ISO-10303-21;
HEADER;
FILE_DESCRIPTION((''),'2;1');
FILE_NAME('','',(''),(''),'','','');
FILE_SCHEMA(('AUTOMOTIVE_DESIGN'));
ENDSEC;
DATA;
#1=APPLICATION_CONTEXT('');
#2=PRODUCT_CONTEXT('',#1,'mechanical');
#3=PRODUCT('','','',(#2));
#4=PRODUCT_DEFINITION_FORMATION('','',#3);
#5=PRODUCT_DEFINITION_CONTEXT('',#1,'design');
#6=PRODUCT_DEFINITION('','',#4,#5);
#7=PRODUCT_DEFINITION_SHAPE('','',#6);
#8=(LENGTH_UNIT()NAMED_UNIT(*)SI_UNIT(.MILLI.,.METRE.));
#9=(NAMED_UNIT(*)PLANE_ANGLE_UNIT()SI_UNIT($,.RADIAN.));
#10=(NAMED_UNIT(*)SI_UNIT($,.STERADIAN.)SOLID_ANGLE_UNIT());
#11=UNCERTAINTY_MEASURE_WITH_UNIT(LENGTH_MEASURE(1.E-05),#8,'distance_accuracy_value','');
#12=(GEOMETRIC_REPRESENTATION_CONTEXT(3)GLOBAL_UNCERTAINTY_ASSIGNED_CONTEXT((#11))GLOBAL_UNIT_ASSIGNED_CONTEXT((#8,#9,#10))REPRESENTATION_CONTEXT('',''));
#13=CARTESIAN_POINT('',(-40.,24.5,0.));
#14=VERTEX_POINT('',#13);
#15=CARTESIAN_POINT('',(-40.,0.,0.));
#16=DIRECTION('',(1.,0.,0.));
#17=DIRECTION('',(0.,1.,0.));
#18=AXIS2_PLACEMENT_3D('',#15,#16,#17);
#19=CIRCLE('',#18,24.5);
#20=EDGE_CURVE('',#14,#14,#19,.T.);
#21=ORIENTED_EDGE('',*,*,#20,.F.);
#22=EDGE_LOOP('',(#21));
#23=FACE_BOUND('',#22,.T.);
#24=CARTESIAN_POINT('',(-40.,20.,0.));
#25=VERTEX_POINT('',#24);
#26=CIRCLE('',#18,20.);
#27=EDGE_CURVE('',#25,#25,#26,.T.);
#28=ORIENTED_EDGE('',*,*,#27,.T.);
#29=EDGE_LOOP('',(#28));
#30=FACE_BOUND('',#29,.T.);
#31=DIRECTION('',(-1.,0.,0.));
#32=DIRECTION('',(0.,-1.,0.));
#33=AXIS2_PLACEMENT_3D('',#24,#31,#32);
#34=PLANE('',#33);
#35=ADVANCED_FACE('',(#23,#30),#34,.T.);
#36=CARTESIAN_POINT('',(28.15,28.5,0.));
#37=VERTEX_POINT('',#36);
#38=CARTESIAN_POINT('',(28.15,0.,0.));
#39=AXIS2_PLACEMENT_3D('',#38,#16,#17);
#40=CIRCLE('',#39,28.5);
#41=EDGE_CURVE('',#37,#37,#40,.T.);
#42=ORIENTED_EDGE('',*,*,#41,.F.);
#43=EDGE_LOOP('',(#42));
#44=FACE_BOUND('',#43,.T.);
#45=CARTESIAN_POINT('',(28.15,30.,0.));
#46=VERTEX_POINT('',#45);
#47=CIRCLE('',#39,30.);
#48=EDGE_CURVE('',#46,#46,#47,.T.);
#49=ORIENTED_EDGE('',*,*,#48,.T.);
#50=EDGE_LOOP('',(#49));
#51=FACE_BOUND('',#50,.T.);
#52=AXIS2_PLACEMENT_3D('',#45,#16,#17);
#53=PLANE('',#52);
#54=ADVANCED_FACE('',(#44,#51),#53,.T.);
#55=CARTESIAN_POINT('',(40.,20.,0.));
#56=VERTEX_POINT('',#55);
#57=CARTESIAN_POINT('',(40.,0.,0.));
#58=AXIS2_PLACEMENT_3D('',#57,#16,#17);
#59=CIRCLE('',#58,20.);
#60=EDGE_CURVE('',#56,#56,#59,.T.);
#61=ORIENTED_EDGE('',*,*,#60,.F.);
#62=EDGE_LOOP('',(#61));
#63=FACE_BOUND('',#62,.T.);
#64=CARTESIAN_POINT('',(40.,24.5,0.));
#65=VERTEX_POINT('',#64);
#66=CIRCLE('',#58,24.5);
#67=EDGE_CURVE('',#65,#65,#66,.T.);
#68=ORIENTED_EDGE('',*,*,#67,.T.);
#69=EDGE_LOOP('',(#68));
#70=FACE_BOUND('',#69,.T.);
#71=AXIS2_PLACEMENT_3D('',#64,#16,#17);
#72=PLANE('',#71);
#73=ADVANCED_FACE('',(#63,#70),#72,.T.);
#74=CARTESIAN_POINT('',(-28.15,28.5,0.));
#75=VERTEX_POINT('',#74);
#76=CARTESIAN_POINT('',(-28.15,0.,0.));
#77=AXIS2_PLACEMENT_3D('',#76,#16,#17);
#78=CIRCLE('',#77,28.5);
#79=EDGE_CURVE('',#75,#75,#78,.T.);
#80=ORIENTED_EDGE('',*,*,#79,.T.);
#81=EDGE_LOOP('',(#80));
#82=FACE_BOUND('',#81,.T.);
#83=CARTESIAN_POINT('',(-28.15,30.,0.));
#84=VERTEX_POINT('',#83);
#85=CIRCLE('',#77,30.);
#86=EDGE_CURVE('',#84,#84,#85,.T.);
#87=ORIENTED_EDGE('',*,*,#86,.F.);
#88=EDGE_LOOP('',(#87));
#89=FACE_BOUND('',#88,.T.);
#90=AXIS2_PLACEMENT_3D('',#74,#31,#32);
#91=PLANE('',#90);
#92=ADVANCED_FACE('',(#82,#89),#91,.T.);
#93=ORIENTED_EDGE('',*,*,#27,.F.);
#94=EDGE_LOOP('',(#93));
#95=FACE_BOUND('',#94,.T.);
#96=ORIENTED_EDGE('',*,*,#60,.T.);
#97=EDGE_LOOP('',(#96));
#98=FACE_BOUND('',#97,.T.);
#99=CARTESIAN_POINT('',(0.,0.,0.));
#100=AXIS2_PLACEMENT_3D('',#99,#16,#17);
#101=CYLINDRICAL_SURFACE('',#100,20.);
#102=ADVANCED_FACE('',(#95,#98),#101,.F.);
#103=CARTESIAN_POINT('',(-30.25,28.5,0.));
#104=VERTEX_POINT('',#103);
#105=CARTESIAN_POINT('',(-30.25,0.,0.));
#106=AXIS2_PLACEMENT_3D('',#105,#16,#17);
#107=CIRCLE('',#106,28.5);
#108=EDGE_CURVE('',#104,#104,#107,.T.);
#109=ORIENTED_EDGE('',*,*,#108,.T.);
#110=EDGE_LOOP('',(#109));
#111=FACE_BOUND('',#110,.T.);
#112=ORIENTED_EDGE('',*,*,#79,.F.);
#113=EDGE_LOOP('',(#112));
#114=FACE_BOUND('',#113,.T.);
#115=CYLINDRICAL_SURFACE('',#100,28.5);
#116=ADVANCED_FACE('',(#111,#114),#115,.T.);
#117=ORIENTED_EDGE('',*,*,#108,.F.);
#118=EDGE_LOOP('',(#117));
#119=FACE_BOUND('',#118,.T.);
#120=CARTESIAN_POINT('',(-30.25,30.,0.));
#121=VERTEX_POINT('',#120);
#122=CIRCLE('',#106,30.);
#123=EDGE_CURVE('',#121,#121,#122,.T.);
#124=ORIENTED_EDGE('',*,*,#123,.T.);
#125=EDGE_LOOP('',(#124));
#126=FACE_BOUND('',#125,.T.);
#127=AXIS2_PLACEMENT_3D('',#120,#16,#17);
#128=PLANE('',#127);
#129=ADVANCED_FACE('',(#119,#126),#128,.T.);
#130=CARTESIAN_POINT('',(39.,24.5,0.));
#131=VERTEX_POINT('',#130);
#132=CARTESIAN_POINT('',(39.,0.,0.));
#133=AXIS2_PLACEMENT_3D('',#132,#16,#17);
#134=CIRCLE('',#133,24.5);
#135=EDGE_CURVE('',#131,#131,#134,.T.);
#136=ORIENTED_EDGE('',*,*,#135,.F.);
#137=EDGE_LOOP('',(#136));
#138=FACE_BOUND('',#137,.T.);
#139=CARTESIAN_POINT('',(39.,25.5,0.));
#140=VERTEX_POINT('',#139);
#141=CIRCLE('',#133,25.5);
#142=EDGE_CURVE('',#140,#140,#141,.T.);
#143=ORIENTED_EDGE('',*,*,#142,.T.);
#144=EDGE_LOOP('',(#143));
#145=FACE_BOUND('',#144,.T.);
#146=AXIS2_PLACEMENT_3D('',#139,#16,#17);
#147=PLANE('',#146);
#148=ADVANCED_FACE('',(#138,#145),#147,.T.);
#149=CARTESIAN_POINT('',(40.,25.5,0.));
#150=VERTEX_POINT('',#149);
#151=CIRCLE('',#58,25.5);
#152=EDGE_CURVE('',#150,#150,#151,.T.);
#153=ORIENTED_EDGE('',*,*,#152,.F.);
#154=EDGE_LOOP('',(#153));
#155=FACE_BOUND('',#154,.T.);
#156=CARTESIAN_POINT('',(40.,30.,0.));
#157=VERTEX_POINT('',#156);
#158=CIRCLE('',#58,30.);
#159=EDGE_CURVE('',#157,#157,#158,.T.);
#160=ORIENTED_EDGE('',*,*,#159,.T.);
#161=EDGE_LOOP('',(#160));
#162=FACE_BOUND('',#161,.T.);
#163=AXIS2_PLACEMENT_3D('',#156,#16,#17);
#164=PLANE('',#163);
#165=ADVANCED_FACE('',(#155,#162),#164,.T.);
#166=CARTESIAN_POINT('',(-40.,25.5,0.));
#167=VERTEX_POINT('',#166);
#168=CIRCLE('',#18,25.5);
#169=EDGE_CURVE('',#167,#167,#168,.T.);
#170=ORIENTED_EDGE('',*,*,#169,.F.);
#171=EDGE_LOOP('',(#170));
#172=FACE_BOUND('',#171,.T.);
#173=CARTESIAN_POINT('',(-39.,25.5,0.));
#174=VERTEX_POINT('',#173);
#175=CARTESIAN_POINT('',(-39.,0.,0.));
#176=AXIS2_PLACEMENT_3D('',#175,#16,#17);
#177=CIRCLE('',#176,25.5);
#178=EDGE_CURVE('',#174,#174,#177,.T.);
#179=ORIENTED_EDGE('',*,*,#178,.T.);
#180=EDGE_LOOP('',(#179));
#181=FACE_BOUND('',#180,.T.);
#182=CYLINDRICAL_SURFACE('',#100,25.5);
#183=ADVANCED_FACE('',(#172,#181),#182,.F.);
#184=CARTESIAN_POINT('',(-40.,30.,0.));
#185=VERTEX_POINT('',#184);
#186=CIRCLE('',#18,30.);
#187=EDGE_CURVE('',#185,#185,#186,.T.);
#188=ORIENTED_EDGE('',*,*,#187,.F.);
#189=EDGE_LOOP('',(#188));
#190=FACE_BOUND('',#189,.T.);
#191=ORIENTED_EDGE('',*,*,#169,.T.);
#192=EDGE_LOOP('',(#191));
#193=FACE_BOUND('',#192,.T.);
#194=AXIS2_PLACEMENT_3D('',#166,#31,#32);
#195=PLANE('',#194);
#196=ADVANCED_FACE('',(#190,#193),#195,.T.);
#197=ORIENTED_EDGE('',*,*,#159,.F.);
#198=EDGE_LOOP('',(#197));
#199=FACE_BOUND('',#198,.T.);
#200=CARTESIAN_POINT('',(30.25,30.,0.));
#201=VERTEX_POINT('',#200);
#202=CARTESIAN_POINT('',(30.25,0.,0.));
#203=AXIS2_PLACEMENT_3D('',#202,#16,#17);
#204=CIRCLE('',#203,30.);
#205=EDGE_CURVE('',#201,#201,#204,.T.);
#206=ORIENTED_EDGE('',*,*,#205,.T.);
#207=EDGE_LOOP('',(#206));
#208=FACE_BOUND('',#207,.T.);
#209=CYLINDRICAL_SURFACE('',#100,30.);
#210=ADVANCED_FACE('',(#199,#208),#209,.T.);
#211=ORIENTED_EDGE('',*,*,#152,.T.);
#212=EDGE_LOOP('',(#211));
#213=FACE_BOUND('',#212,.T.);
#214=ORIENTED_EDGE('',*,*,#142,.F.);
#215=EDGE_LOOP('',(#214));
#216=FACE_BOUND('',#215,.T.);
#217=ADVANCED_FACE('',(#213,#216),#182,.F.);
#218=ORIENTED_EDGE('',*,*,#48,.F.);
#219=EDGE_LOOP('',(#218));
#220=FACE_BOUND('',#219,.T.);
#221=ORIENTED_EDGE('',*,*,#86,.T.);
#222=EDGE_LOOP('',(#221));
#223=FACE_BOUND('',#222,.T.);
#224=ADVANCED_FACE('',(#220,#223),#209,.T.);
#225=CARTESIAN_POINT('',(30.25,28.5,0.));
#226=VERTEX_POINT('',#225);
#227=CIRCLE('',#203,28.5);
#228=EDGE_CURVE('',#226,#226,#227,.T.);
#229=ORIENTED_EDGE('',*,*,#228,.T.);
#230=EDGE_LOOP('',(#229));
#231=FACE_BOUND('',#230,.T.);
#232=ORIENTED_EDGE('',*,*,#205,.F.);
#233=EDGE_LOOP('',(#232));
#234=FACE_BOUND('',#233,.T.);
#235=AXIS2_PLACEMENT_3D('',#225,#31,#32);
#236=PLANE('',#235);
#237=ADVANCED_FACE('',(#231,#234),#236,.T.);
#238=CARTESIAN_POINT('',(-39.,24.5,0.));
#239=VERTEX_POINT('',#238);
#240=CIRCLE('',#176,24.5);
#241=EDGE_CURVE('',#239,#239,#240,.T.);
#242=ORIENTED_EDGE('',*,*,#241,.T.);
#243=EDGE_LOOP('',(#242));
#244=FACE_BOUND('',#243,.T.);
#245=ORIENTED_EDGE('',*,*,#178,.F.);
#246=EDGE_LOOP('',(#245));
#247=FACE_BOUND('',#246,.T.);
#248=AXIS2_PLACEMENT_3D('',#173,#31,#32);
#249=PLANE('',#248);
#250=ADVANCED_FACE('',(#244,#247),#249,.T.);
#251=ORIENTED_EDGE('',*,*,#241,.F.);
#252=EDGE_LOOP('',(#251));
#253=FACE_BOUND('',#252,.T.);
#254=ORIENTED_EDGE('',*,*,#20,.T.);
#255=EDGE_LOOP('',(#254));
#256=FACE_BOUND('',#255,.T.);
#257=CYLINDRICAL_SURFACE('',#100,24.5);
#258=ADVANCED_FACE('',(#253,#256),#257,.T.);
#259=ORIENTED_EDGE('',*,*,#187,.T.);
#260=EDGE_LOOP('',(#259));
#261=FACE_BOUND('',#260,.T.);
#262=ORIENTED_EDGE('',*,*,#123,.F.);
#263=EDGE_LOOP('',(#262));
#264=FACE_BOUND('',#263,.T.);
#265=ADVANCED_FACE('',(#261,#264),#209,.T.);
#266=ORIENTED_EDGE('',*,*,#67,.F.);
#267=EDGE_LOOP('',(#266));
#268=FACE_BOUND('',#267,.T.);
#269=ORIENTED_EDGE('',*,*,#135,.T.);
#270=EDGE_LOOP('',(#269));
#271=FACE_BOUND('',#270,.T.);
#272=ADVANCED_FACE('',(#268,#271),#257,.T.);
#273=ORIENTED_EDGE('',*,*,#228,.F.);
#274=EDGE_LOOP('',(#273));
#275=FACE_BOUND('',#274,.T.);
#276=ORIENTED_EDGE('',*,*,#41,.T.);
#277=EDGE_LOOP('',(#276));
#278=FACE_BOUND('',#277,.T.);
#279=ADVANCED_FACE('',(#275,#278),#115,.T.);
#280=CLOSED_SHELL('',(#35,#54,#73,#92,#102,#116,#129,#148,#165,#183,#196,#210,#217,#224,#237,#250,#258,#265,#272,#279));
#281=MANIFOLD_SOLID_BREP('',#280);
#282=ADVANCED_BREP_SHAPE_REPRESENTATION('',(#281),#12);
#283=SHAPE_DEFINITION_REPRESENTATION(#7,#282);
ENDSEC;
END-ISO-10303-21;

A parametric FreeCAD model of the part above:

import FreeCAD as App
import Part
import Sketcher

V = App.Vector

doc = App.newDocument("Part")
body = doc.addObject("PartDesign::Body", "Body")

# Sketch on XY plane
sketch1 = body.newObject("Sketcher::SketchObject", "Sketch")
sketch1.AttachmentSupport = (doc.getObject("XY_Plane"), [""])
sketch1.MapMode = "FlatFace"
sketch1.addGeometry([
    Part.LineSegment(V(-30.2, 30, 0), V(-40, 30, 0)),  # 0
    Part.LineSegment(V(-40, 30, 0), V(-40, 25.5, 0)),  # 1
    Part.LineSegment(V(-40, 25.5, 0), V(-39, 25.5, 0)),  # 2
    Part.LineSegment(V(-39, 25.5, 0), V(-39, 24.5, 0)),  # 3
    Part.LineSegment(V(-39, 24.5, 0), V(-40, 24.5, 0)),  # 4
    Part.LineSegment(V(-40, 24.5, 0), V(-40, 20, 0)),  # 5
    Part.LineSegment(V(-40, 20, 0), V(40, 20, 0)),  # 6
    Part.LineSegment(V(40, 20, 0), V(40, 24.5, 0)),  # 7
    Part.LineSegment(V(40, 24.5, 0), V(39, 24.5, 0)),  # 8
    Part.LineSegment(V(39, 24.5, 0), V(39, 25.5, 0)),  # 9
    Part.LineSegment(V(39, 25.5, 0), V(40, 25.5, 0)),  # 10
    Part.LineSegment(V(40, 25.5, 0), V(40, 30, 0)),  # 11
    Part.LineSegment(V(40, 30, 0), V(30.2, 30, 0)),  # 12
    Part.LineSegment(V(30.2, 30, 0), V(30.2, 28.5, 0)),  # 13
    Part.LineSegment(V(30.2, 28.5, 0), V(28.1, 28.5, 0)),  # 14
    Part.LineSegment(V(28.1, 28.5, 0), V(28.1, 30, 0)),  # 15
    Part.LineSegment(V(28.1, 30, 0), V(-28.1, 30, 0)),  # 16
    Part.LineSegment(V(-28.1, 30, 0), V(-28.1, 28.5, 0)),  # 17
    Part.LineSegment(V(-28.1, 28.5, 0), V(-30.2, 28.5, 0)),  # 18
    Part.LineSegment(V(-30.2, 28.5, 0), V(-30.2, 30, 0)),  # 19
], False)
sketch1.addConstraint([
    Sketcher.Constraint("Coincident", 0, 2, 1, 1),
    Sketcher.Constraint("Coincident", 1, 2, 2, 1),
    Sketcher.Constraint("Coincident", 2, 2, 3, 1),
    Sketcher.Constraint("Coincident", 3, 2, 4, 1),
    Sketcher.Constraint("Coincident", 4, 2, 5, 1),
    Sketcher.Constraint("Coincident", 5, 2, 6, 1),
    Sketcher.Constraint("Coincident", 6, 2, 7, 1),
    Sketcher.Constraint("Coincident", 7, 2, 8, 1),
    Sketcher.Constraint("Coincident", 8, 2, 9, 1),
    Sketcher.Constraint("Coincident", 9, 2, 10, 1),
    Sketcher.Constraint("Coincident", 10, 2, 11, 1),
    Sketcher.Constraint("Coincident", 11, 2, 12, 1),
    Sketcher.Constraint("Coincident", 12, 2, 13, 1),
    Sketcher.Constraint("Coincident", 13, 2, 14, 1),
    Sketcher.Constraint("Coincident", 14, 2, 15, 1),
    Sketcher.Constraint("Coincident", 15, 2, 16, 1),
    Sketcher.Constraint("Coincident", 16, 2, 17, 1),
    Sketcher.Constraint("Coincident", 17, 2, 18, 1),
    Sketcher.Constraint("Coincident", 18, 2, 19, 1),
    Sketcher.Constraint("Coincident", 19, 2, 0, 1),
    Sketcher.Constraint("Horizontal", 0),
    Sketcher.Constraint("Vertical", 1),
    Sketcher.Constraint("Horizontal", 2),
    Sketcher.Constraint("Vertical", 3),
    Sketcher.Constraint("Horizontal", 4),
    Sketcher.Constraint("Vertical", 5),
    Sketcher.Constraint("Horizontal", 6),
    Sketcher.Constraint("Vertical", 7),
    Sketcher.Constraint("Horizontal", 8),
    Sketcher.Constraint("Vertical", 9),
    Sketcher.Constraint("Horizontal", 10),
    Sketcher.Constraint("Vertical", 11),
    Sketcher.Constraint("Horizontal", 12),
    Sketcher.Constraint("Vertical", 13),
    Sketcher.Constraint("Horizontal", 14),
    Sketcher.Constraint("Vertical", 15),
    Sketcher.Constraint("Horizontal", 16),
    Sketcher.Constraint("Vertical", 17),
    Sketcher.Constraint("Horizontal", 18),
    Sketcher.Constraint("Vertical", 19),
    Sketcher.Constraint("Symmetric", 4, 2, 7, 2, -2),
    Sketcher.Constraint("Symmetric", 2, 2, 9, 2, -2),
    Sketcher.Constraint("Symmetric", 0, 2, 11, 2, -2),
    Sketcher.Constraint("Symmetric", 14, 2, 17, 2, -2),
    Sketcher.Constraint("Horizontal", 12, 2, 15, 2),
    Sketcher.Constraint("Vertical", 1, 2, 4, 2),
    Sketcher.Constraint("Equal", 0, 12),
    Sketcher.Constraint("Equal", 10, 3),
    Sketcher.Constraint("Equal", 1, 5),
    Sketcher.Constraint("DistanceX", 2, 1, 2, 2, 1.0),
    Sketcher.Constraint("DistanceX", 6, 1, 6, 2, 80.0),
    Sketcher.Constraint("DistanceX", 14, 2, 14, 1, 2.1),
    Sketcher.Constraint("DistanceX", 16, 2, 16, 1, 56.3),
    Sketcher.Constraint("DistanceY", 1, 2, 1, 1, 4.5),
    Sketcher.Constraint("DistanceY", 13, 2, 13, 1, 1.5),
    Sketcher.Constraint("DistanceY", -1, 1, 0, 2, 30.0),
])
revolution = body.newObject("PartDesign::Revolution", "Revolution")
revolution.Profile = sketch1
revolution.ReferenceAxis = (sketch1, ["H_Axis"])
revolution.Angle = 360

doc.recompute()
